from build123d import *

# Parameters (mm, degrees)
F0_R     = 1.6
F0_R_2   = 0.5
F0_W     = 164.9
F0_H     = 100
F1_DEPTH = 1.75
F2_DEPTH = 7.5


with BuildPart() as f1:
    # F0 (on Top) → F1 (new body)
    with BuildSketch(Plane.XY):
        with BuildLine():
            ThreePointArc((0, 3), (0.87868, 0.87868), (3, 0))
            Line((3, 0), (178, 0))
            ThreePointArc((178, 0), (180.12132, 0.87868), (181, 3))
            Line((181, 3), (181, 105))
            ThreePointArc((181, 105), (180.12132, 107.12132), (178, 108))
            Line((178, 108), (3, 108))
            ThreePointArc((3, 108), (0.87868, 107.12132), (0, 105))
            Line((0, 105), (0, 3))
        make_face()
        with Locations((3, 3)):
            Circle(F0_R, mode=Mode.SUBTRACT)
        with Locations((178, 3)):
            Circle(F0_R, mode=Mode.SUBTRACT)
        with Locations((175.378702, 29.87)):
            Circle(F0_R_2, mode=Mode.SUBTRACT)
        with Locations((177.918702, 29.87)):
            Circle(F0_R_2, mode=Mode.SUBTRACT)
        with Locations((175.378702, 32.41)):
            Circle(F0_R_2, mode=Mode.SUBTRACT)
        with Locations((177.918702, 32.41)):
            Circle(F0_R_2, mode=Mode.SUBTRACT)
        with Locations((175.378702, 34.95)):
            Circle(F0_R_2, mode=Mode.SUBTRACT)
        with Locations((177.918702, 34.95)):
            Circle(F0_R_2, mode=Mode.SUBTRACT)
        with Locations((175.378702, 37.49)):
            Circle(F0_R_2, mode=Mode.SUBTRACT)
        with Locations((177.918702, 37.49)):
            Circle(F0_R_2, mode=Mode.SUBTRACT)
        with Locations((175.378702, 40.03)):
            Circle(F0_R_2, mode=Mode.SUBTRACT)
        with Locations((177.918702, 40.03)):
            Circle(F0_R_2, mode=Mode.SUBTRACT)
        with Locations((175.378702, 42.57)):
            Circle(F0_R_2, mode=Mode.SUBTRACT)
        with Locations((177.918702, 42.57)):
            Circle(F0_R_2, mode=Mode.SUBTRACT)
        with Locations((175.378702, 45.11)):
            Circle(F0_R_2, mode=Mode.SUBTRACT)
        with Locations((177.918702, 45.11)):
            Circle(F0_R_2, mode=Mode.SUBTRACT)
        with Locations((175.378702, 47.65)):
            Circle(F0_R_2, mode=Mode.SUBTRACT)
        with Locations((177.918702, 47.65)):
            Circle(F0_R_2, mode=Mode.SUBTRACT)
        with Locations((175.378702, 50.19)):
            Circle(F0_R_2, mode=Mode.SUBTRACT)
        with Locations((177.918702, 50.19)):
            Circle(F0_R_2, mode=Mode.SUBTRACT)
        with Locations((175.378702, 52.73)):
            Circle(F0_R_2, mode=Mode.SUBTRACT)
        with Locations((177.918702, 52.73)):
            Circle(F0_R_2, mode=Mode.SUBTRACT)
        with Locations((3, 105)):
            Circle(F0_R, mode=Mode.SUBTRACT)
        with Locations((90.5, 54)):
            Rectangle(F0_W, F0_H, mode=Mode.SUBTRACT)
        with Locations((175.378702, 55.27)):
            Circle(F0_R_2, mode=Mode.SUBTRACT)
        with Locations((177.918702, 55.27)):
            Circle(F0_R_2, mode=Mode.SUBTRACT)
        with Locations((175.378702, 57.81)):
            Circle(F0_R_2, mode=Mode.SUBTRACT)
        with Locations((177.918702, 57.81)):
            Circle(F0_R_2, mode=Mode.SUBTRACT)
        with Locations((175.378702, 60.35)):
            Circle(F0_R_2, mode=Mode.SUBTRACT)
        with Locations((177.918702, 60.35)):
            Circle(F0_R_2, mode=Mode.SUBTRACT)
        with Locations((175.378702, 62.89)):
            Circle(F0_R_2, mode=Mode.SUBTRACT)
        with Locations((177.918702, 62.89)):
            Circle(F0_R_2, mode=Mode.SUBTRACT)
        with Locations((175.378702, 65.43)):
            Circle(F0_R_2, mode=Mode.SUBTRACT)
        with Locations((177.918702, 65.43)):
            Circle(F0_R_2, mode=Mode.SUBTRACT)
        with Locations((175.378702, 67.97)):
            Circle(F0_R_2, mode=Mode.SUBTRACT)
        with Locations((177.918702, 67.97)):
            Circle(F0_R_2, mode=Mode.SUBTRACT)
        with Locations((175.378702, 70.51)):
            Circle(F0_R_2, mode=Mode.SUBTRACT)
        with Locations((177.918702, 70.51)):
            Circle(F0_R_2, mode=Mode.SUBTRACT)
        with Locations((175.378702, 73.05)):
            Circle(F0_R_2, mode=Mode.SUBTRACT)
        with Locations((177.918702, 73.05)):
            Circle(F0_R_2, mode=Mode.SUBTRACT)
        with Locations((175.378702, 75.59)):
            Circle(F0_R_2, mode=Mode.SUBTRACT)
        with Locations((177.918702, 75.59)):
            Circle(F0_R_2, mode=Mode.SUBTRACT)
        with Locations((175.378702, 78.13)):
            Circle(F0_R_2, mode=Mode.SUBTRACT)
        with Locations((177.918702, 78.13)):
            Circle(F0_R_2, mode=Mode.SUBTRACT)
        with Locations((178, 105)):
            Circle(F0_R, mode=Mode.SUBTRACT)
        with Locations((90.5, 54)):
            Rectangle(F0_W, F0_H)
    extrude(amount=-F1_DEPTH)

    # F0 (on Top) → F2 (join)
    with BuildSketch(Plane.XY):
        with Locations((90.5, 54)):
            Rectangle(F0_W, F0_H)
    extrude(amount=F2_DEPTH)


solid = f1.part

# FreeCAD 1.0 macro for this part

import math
import FreeCAD as App
import Part
import Sketcher
from FreeCAD import Vector
Q = App.Units.Quantity

doc = App.newDocument("Part")
body = doc.addObject("PartDesign::Body", "Body")

# Sketch on XY plane
sketch1 = doc.addObject("Sketcher::SketchObject", "Sketch")
body.addObject(sketch1)
sketch1.AttachmentSupport = (doc.XY_Plane, [""])
sketch1.MapMode = "FlatFace"
sketch1.addGeometry([
    Part.ArcOfCircle(Part.Circle(Vector(3, 3, 0), Vector(0, 0, 1), 3), math.radians(-180), math.radians(-90)),  # 0
    Part.LineSegment(Vector(3, 0, 0), Vector(178, 0, 0)),  # 1
    Part.ArcOfCircle(Part.Circle(Vector(178, 3, 0), Vector(0, 0, 1), 3), math.radians(-90), math.radians(0)),  # 2
    Part.LineSegment(Vector(181, 3, 0), Vector(181, 105, 0)),  # 3
    Part.ArcOfCircle(Part.Circle(Vector(178, 105, 0), Vector(0, 0, 1), 3), math.radians(0), math.radians(90)),  # 4
    Part.LineSegment(Vector(178, 108, 0), Vector(3, 108, 0)),  # 5
    Part.ArcOfCircle(Part.Circle(Vector(3, 105, 0), Vector(0, 0, 1), 3), math.radians(90), math.radians(180)),  # 6
    Part.LineSegment(Vector(0, 105, 0), Vector(0, 3, 0)),  # 7
    Part.Circle(Vector(3, 3, 0), Vector(0, 0, 1), 1.6),  # 8
    Part.Circle(Vector(178, 3, 0), Vector(0, 0, 1), 1.6),  # 9
    Part.Circle(Vector(175.4, 29.9, 0), Vector(0, 0, 1), 0.5),  # 10
    Part.Circle(Vector(177.9, 29.9, 0), Vector(0, 0, 1), 0.5),  # 11
    Part.Circle(Vector(175.4, 32.4, 0), Vector(0, 0, 1), 0.5),  # 12
    Part.Circle(Vector(177.9, 32.4, 0), Vector(0, 0, 1), 0.5),  # 13
    Part.Circle(Vector(175.4, 35, 0), Vector(0, 0, 1), 0.5),  # 14
    Part.Circle(Vector(177.9, 35, 0), Vector(0, 0, 1), 0.5),  # 15
    Part.Circle(Vector(175.4, 37.5, 0), Vector(0, 0, 1), 0.5),  # 16
    Part.Circle(Vector(177.9, 37.5, 0), Vector(0, 0, 1), 0.5),  # 17
    Part.Circle(Vector(175.4, 40, 0), Vector(0, 0, 1), 0.5),  # 18
    Part.Circle(Vector(177.9, 40, 0), Vector(0, 0, 1), 0.5),  # 19
    Part.Circle(Vector(175.4, 42.6, 0), Vector(0, 0, 1), 0.5),  # 20
    Part.Circle(Vector(177.9, 42.6, 0), Vector(0, 0, 1), 0.5),  # 21
    Part.Circle(Vector(175.4, 45.1, 0), Vector(0, 0, 1), 0.5),  # 22
    Part.Circle(Vector(177.9, 45.1, 0), Vector(0, 0, 1), 0.5),  # 23
    Part.Circle(Vector(175.4, 47.6, 0), Vector(0, 0, 1), 0.5),  # 24
    Part.Circle(Vector(177.9, 47.6, 0), Vector(0, 0, 1), 0.5),  # 25
    Part.Circle(Vector(175.4, 50.2, 0), Vector(0, 0, 1), 0.5),  # 26
    Part.Circle(Vector(177.9, 50.2, 0), Vector(0, 0, 1), 0.5),  # 27
    Part.Circle(Vector(175.4, 52.7, 0), Vector(0, 0, 1), 0.5),  # 28
    Part.Circle(Vector(177.9, 52.7, 0), Vector(0, 0, 1), 0.5),  # 29
    Part.Circle(Vector(3, 105, 0), Vector(0, 0, 1), 1.6),  # 30
    Part.Circle(Vector(175.4, 55.3, 0), Vector(0, 0, 1), 0.5),  # 31
    Part.Circle(Vector(177.9, 55.3, 0), Vector(0, 0, 1), 0.5),  # 32
    Part.Circle(Vector(175.4, 57.8, 0), Vector(0, 0, 1), 0.5),  # 33
    Part.Circle(Vector(177.9, 57.8, 0), Vector(0, 0, 1), 0.5),  # 34
    Part.Circle(Vector(175.4, 60.4, 0), Vector(0, 0, 1), 0.5),  # 35
    Part.Circle(Vector(177.9, 60.4, 0), Vector(0, 0, 1), 0.5),  # 36
    Part.Circle(Vector(175.4, 62.9, 0), Vector(0, 0, 1), 0.5),  # 37
    Part.Circle(Vector(177.9, 62.9, 0), Vector(0, 0, 1), 0.5),  # 38
    Part.Circle(Vector(175.4, 65.4, 0), Vector(0, 0, 1), 0.5),  # 39
    Part.Circle(Vector(177.9, 65.4, 0), Vector(0, 0, 1), 0.5),  # 40
    Part.Circle(Vector(175.4, 68, 0), Vector(0, 0, 1), 0.5),  # 41
    Part.Circle(Vector(177.9, 68, 0), Vector(0, 0, 1), 0.5),  # 42
    Part.Circle(Vector(175.4, 70.5, 0), Vector(0, 0, 1), 0.5),  # 43
    Part.Circle(Vector(177.9, 70.5, 0), Vector(0, 0, 1), 0.5),  # 44
    Part.Circle(Vector(175.4, 73, 0), Vector(0, 0, 1), 0.5),  # 45
    Part.Circle(Vector(177.9, 73, 0), Vector(0, 0, 1), 0.5),  # 46
    Part.Circle(Vector(175.4, 75.6, 0), Vector(0, 0, 1), 0.5),  # 47
    Part.Circle(Vector(177.9, 75.6, 0), Vector(0, 0, 1), 0.5),  # 48
    Part.Circle(Vector(175.4, 78.1, 0), Vector(0, 0, 1), 0.5),  # 49
    Part.Circle(Vector(177.9, 78.1, 0), Vector(0, 0, 1), 0.5),  # 50
    Part.Circle(Vector(178, 105, 0), Vector(0, 0, 1), 1.6),  # 51
], False)
sketch1.addConstraint([
    Sketcher.Constraint("Tangent", 0, 2, 1, 1),
    Sketcher.Constraint("Tangent", 1, 2, 2, 1),
    Sketcher.Constraint("Tangent", 2, 2, 3, 1),
    Sketcher.Constraint("Tangent", 3, 2, 4, 1),
    Sketcher.Constraint("Tangent", 4, 2, 5, 1),
    Sketcher.Constraint("Tangent", 5, 2, 6, 1),
    Sketcher.Constraint("Tangent", 6, 2, 7, 1),
    Sketcher.Constraint("Tangent", 7, 2, 0, 1),
    Sketcher.Constraint("Horizontal", 1),
    Sketcher.Constraint("Vertical", 3),
    Sketcher.Constraint("Horizontal", 5),
    Sketcher.Constraint("Vertical", 7),
    Sketcher.Constraint("Coincident", 8, 3, 0, 3),
    Sketcher.Constraint("Coincident", 9, 3, 2, 3),
    Sketcher.Constraint("Coincident", 30, 3, 6, 3),
    Sketcher.Constraint("Coincident", 51, 3, 4, 3),
    Sketcher.Constraint("Equal", 0, 2),
    Sketcher.Constraint("Equal", 2, 4),
    Sketcher.Constraint("Equal", 4, 6),
    Sketcher.Constraint("Equal", 8, 9),
    Sketcher.Constraint("Equal", 10, 11),
    Sketcher.Constraint("Equal", 11, 12),
    Sketcher.Constraint("Equal", 12, 13),
    Sketcher.Constraint("Equal", 13, 14),
    Sketcher.Constraint("Equal", 14, 15),
    Sketcher.Constraint("Equal", 15, 16),
    Sketcher.Constraint("Equal", 16, 17),
    Sketcher.Constraint("Equal", 17, 18),
    Sketcher.Constraint("Equal", 18, 19),
    Sketcher.Constraint("Equal", 19, 20),
    Sketcher.Constraint("Equal", 20, 21),
    Sketcher.Constraint("Equal", 21, 22),
    Sketcher.Constraint("Equal", 22, 23),
    Sketcher.Constraint("Equal", 23, 24),
    Sketcher.Constraint("Equal", 24, 25),
    Sketcher.Constraint("Equal", 25, 26),
    Sketcher.Constraint("Equal", 26, 27),
    Sketcher.Constraint("Equal", 27, 28),
    Sketcher.Constraint("Equal", 28, 29),
    Sketcher.Constraint("Equal", 9, 30),
    Sketcher.Constraint("Equal", 29, 31),
    Sketcher.Constraint("Equal", 31, 32),
    Sketcher.Constraint("Equal", 32, 33),
    Sketcher.Constraint("Equal", 33, 34),
    Sketcher.Constraint("Equal", 34, 35),
    Sketcher.Constraint("Equal", 35, 36),
    Sketcher.Constraint("Equal", 36, 37),
    Sketcher.Constraint("Equal", 37, 38),
    Sketcher.Constraint("Equal", 38, 39),
    Sketcher.Constraint("Equal", 39, 40),
    Sketcher.Constraint("Equal", 40, 41),
    Sketcher.Constraint("Equal", 41, 42),
    Sketcher.Constraint("Equal", 42, 43),
    Sketcher.Constraint("Equal", 43, 44),
    Sketcher.Constraint("Equal", 44, 45),
    Sketcher.Constraint("Equal", 45, 46),
    Sketcher.Constraint("Equal", 46, 47),
    Sketcher.Constraint("Equal", 47, 48),
    Sketcher.Constraint("Equal", 48, 49),
    Sketcher.Constraint("Equal", 49, 50),
    Sketcher.Constraint("Equal", 30, 51),
    Sketcher.Constraint("PointOnObject", 0, 2, -1),
    Sketcher.Constraint("PointOnObject", 6, 2, -2),
    Sketcher.Constraint("Horizontal", 10, 3, 11, 3),
    Sketcher.Constraint("Horizontal", 12, 3, 13, 3),
    Sketcher.Constraint("Horizontal", 14, 3, 15, 3),
    Sketcher.Constraint("Horizontal", 16, 3, 17, 3),
    Sketcher.Constraint("Horizontal", 18, 3, 19, 3),
    Sketcher.Constraint("Horizontal", 20, 3, 21, 3),
    Sketcher.Constraint("Horizontal", 22, 3, 23, 3),
    Sketcher.Constraint("Horizontal", 24, 3, 25, 3),
    Sketcher.Constraint("Horizontal", 26, 3, 27, 3),
    Sketcher.Constraint("Horizontal", 28, 3, 29, 3),
    Sketcher.Constraint("Horizontal", 31, 3, 32, 3),
    Sketcher.Constraint("Horizontal", 33, 3, 34, 3),
    Sketcher.Constraint("Horizontal", 35, 3, 36, 3),
    Sketcher.Constraint("Horizontal", 37, 3, 38, 3),
    Sketcher.Constraint("Horizontal", 39, 3, 40, 3),
    Sketcher.Constraint("Horizontal", 41, 3, 42, 3),
    Sketcher.Constraint("Horizontal", 43, 3, 44, 3),
    Sketcher.Constraint("Horizontal", 45, 3, 46, 3),
    Sketcher.Constraint("Horizontal", 47, 3, 48, 3),
    Sketcher.Constraint("Horizontal", 49, 3, 50, 3),
    Sketcher.Constraint("Vertical", 10, 3, 12, 3),
    Sketcher.Constraint("Vertical", 11, 3, 13, 3),
    Sketcher.Constraint("Vertical", 12, 3, 14, 3),
    Sketcher.Constraint("Vertical", 13, 3, 15, 3),
    Sketcher.Constraint("Vertical", 14, 3, 16, 3),
    Sketcher.Constraint("Vertical", 15, 3, 17, 3),
    Sketcher.Constraint("Vertical", 16, 3, 18, 3),
    Sketcher.Constraint("Vertical", 17, 3, 19, 3),
    Sketcher.Constraint("Vertical", 18, 3, 20, 3),
    Sketcher.Constraint("Vertical", 19, 3, 21, 3),
    Sketcher.Constraint("Vertical", 20, 3, 22, 3),
    Sketcher.Constraint("Vertical", 21, 3, 23, 3),
    Sketcher.Constraint("Vertical", 22, 3, 24, 3),
    Sketcher.Constraint("Vertical", 23, 3, 25, 3),
    Sketcher.Constraint("Vertical", 24, 3, 26, 3),
    Sketcher.Constraint("Vertical", 25, 3, 27, 3),
    Sketcher.Constraint("Vertical", 26, 3, 28, 3),
    Sketcher.Constraint("Vertical", 27, 3, 29, 3),
    Sketcher.Constraint("Vertical", 28, 3, 31, 3),
    Sketcher.Constraint("Vertical", 29, 3, 32, 3),
    Sketcher.Constraint("Vertical", 31, 3, 33, 3),
    Sketcher.Constraint("Vertical", 32, 3, 34, 3),
    Sketcher.Constraint("Vertical", 33, 3, 35, 3),
    Sketcher.Constraint("Vertical", 34, 3, 36, 3),
    Sketcher.Constraint("Vertical", 35, 3, 37, 3),
    Sketcher.Constraint("Vertical", 36, 3, 38, 3),
    Sketcher.Constraint("Vertical", 37, 3, 39, 3),
    Sketcher.Constraint("Vertical", 38, 3, 40, 3),
    Sketcher.Constraint("Vertical", 39, 3, 41, 3),
    Sketcher.Constraint("Vertical", 40, 3, 42, 3),
    Sketcher.Constraint("Vertical", 41, 3, 43, 3),
    Sketcher.Constraint("Vertical", 42, 3, 44, 3),
    Sketcher.Constraint("Vertical", 43, 3, 45, 3),
    Sketcher.Constraint("Vertical", 44, 3, 46, 3),
    Sketcher.Constraint("Vertical", 45, 3, 47, 3),
    Sketcher.Constraint("Vertical", 46, 3, 48, 3),
    Sketcher.Constraint("Vertical", 47, 3, 49, 3),
    Sketcher.Constraint("Vertical", 48, 3, 50, 3),
    Sketcher.Constraint("Diameter", 10, Q("1 mm")),
    Sketcher.Constraint("Radius", 0, Q("3.000001 mm")),
    Sketcher.Constraint("Diameter", 8, Q("3.2 mm")),
    Sketcher.Constraint("DistanceX", 1, 1, 1, 2, Q("175 mm")),
    Sketcher.Constraint("DistanceY", 3, 1, 3, 2, Q("102 mm")),
    Sketcher.Constraint("DistanceY", -1, 1, 10, 3, Q("29.87 mm")),
    Sketcher.Constraint("DistanceY", -1, 1, 12, 3, Q("32.41 mm")),
    Sketcher.Constraint("DistanceY", -1, 1, 14, 3, Q("34.95 mm")),
    Sketcher.Constraint("DistanceY", -1, 1, 16, 3, Q("37.49 mm")),
    Sketcher.Constraint("DistanceY", -1, 1, 18, 3, Q("40.03 mm")),
    Sketcher.Constraint("DistanceY", -1, 1, 20, 3, Q("42.57 mm")),
    Sketcher.Constraint("DistanceY", -1, 1, 22, 3, Q("45.11 mm")),
    Sketcher.Constraint("DistanceY", -1, 1, 24, 3, Q("47.65 mm")),
    Sketcher.Constraint("DistanceY", -1, 1, 26, 3, Q("50.19 mm")),
    Sketcher.Constraint("DistanceY", -1, 1, 28, 3, Q("52.73 mm")),
    Sketcher.Constraint("DistanceY", -1, 1, 31, 3, Q("55.27 mm")),
    Sketcher.Constraint("DistanceY", -1, 1, 33, 3, Q("57.81 mm")),
    Sketcher.Constraint("DistanceY", -1, 1, 35, 3, Q("60.35 mm")),
    Sketcher.Constraint("DistanceY", -1, 1, 37, 3, Q("62.89 mm")),
    Sketcher.Constraint("DistanceY", -1, 1, 39, 3, Q("65.43 mm")),
    Sketcher.Constraint("DistanceY", -1, 1, 41, 3, Q("67.97 mm")),
    Sketcher.Constraint("DistanceY", -1, 1, 43, 3, Q("70.51 mm")),
    Sketcher.Constraint("DistanceY", -1, 1, 45, 3, Q("73.05 mm")),
    Sketcher.Constraint("DistanceY", -1, 1, 47, 3, Q("75.59 mm")),
    Sketcher.Constraint("DistanceY", -1, 1, 49, 3, Q("78.13 mm")),
    Sketcher.Constraint("DistanceX", 10, 3, 11, 3, Q("2.54 mm")),
    Sketcher.Constraint("DistanceX", -1, 1, 10, 3, Q("175.378702 mm")),
])
pad1 = doc.addObject("PartDesign::Pad", "Pad")
body.addObject(pad1)
pad1.Profile = sketch1
pad1.Length = 1.75
pad1.Reversed = True

# Sketch on XY plane
sketch2 = doc.addObject("Sketcher::SketchObject", "Sketch001")
body.addObject(sketch2)
sketch2.AttachmentSupport = (doc.XY_Plane, [""])
sketch2.MapMode = "FlatFace"
sketch2.addGeometry([
    Part.LineSegment(Vector(8, 104, 0), Vector(8, 4, 0)),
    Part.LineSegment(Vector(8, 4, 0), Vector(173, 4, 0)),
    Part.LineSegment(Vector(173, 4, 0), Vector(173, 104, 0)),
    Part.LineSegment(Vector(173, 104, 0), Vector(8, 104, 0)),
], False)
sketch2.addConstraint([
    Sketcher.Constraint("Coincident", 0, 2, 1, 1),
    Sketcher.Constraint("Coincident", 1, 2, 2, 1),
    Sketcher.Constraint("Coincident", 2, 2, 3, 1),
    Sketcher.Constraint("Coincident", 3, 2, 0, 1),
    Sketcher.Constraint("Vertical", 0),
    Sketcher.Constraint("Horizontal", 1),
    Sketcher.Constraint("Vertical", 2),
    Sketcher.Constraint("Horizontal", 3),
    Sketcher.Constraint("DistanceY", 0, 2, 0, 1, Q("100 mm")),
    Sketcher.Constraint("DistanceX", 1, 1, 1, 2, Q("164.9 mm")),
    Sketcher.Constraint("DistanceY", -1, 1, 0, 2, Q("4 mm")),
    Sketcher.Constraint("DistanceX", -1, 1, 0, 2, Q("8.05 mm")),
])
pad2 = doc.addObject("PartDesign::Pad", "Pad001")
body.addObject(pad2)
pad2.Profile = sketch2
pad2.Length = 7.5

doc.recompute()
